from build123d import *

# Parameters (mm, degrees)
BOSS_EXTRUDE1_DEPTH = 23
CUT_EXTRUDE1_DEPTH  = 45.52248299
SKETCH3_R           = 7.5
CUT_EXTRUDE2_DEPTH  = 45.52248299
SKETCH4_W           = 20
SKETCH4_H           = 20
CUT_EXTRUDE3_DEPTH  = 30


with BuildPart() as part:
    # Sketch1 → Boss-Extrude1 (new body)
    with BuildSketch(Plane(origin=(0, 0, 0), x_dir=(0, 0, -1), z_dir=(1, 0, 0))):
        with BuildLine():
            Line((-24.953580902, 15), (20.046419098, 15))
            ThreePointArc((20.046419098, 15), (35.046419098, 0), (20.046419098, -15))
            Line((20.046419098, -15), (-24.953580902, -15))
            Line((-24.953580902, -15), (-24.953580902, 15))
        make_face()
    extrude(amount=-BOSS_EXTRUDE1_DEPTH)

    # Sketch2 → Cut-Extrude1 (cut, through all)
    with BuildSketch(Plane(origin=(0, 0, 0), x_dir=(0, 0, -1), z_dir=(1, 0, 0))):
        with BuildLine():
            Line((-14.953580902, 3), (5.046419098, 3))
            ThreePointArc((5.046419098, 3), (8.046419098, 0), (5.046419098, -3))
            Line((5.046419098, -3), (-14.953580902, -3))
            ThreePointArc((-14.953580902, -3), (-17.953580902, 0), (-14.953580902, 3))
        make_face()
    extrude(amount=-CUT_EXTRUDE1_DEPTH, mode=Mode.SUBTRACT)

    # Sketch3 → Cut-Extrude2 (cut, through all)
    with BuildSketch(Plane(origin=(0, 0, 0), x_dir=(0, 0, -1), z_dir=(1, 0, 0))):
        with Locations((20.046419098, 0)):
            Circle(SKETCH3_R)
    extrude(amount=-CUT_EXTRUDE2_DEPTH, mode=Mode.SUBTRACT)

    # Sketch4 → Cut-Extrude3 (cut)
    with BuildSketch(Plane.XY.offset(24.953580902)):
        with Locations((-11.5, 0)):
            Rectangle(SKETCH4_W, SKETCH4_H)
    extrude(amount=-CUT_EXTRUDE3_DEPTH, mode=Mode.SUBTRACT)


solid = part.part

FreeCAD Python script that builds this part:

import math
import FreeCAD as App
import Part
import Sketcher

V = App.Vector

doc = App.newDocument("Part")
body = doc.addObject("PartDesign::Body", "Body")

# Sketch on YZ plane
sketch1 = doc.addObject("Sketcher::SketchObject", "Sketch")
body.addObject(sketch1)
sketch1.AttachmentSupport = (doc.YZ_Plane, [""])
sketch1.MapMode = "FlatFace"
sketch1.addGeometry(Part.LineSegment(V(15, -20.046419, 0), V(15, 24.953581, 0)), False)
sketch1.addGeometry(Part.LineSegment(V(15, 24.953581, 0), V(-15, 24.953581, 0)), False)
sketch1.addGeometry(Part.LineSegment(V(-15, 24.953581, 0), V(-15, -20.046419, 0)), False)
sketch1.addGeometry(Part.ArcOfCircle(Part.Circle(V(0, -20.046419, 0), V(0, 0, 1), 15), math.radians(180), math.radians(360)), False)
sketch1.addConstraint(Sketcher.Constraint("Coincident", 0, 2, 1, 1))
sketch1.addConstraint(Sketcher.Constraint("Coincident", 1, 2, 2, 1))
sketch1.addConstraint(Sketcher.Constraint("Tangent", 2, 2, 3, 1))
sketch1.addConstraint(Sketcher.Constraint("Tangent", 3, 2, 0, 1))
sketch1.addConstraint(Sketcher.Constraint("Vertical", 0))
sketch1.addConstraint(Sketcher.Constraint("Horizontal", 1))
sketch1.addConstraint(Sketcher.Constraint("Vertical", 2))
sketch1.addConstraint(Sketcher.Constraint("PointOnObject", 3, 3, -2))
sketch1.addConstraint(Sketcher.Constraint("Radius", 3, 15.0))
sketch1.addConstraint(Sketcher.Constraint("DistanceY", 0, 1, 0, 2, 45.0))
sketch1.addConstraint(Sketcher.Constraint("DistanceY", 3, 3, -1, 1, 20.046419))
pad1 = doc.addObject("PartDesign::Pad", "Pad")
body.addObject(pad1)
pad1.Profile = sketch1
pad1.Length = 23
pad1.Reversed = True

# Sketch on YZ plane
sketch2 = doc.addObject("Sketcher::SketchObject", "Sketch001")
body.addObject(sketch2)
sketch2.AttachmentSupport = (doc.YZ_Plane, [""])
sketch2.MapMode = "FlatFace"
sketch2.addGeometry(Part.LineSegment(V(3, -5.046419, 0), V(3, 14.953581, 0)), False)
sketch2.addGeometry(Part.ArcOfCircle(Part.Circle(V(0, 14.953581, 0), V(0, 0, 1), 3), math.radians(0), math.radians(180)), False)
sketch2.addGeometry(Part.LineSegment(V(-3, 14.953581, 0), V(-3, -5.046419, 0)), False)
sketch2.addGeometry(Part.ArcOfCircle(Part.Circle(V(0, -5.046419, 0), V(0, 0, 1), 3), math.radians(180), math.radians(360)), False)
sketch2.addConstraint(Sketcher.Constraint("Tangent", 0, 2, 1, 1))
sketch2.addConstraint(Sketcher.Constraint("Tangent", 1, 2, 2, 1))
sketch2.addConstraint(Sketcher.Constraint("Tangent", 2, 2, 3, 1))
sketch2.addConstraint(Sketcher.Constraint("Tangent", 3, 2, 0, 1))
sketch2.addConstraint(Sketcher.Constraint("Vertical", 0))
sketch2.addConstraint(Sketcher.Constraint("Vertical", 2))
sketch2.addConstraint(Sketcher.Constraint("PointOnObject", 1, 3, -2))
sketch2.addConstraint(Sketcher.Constraint("Radius", 1, 3.0))
sketch2.addConstraint(Sketcher.Constraint("DistanceY", 0, 1, 0, 2, 20.0))
sketch2.addConstraint(Sketcher.Constraint("DistanceY", -1, 1, 1, 3, 14.953581))
pocket1 = doc.addObject("PartDesign::Pocket", "Pocket")
body.addObject(pocket1)
pocket1.Profile = sketch2
pocket1.Type = "ThroughAll"

# Sketch on YZ plane
sketch3 = doc.addObject("Sketcher::SketchObject", "Sketch002")
body.addObject(sketch3)
sketch3.AttachmentSupport = (doc.YZ_Plane, [""])
sketch3.MapMode = "FlatFace"
sketch3.addGeometry(Part.Circle(V(0, -20.046419, 0), V(0, 0, 1), 7.5), False)
sketch3.addConstraint(Sketcher.Constraint("PointOnObject", 0, 3, -2))
sketch3.addConstraint(Sketcher.Constraint("Diameter", 0, 15.0))
sketch3.addConstraint(Sketcher.Constraint("DistanceY", 0, 3, -1, 1, 20.046419))
pocket2 = doc.addObject("PartDesign::Pocket", "Pocket001")
body.addObject(pocket2)
pocket2.Profile = sketch3
pocket2.Type = "ThroughAll"

# Sketch on XY plane
sketch4 = doc.addObject("Sketcher::SketchObject", "Sketch003")
body.addObject(sketch4)
sketch4.AttachmentSupport = (doc.XY_Plane, [""])
sketch4.MapMode = "FlatFace"
sketch4.AttachmentOffset = App.Placement(V(0, 0, 24.953581), App.Rotation())
sketch4.addGeometry(Part.LineSegment(V(-21.5, 10, 0), V(-21.5, -10, 0)), False)
sketch4.addGeometry(Part.LineSegment(V(-21.5, -10, 0), V(-1.5, -10, 0)), False)
sketch4.addGeometry(Part.LineSegment(V(-1.5, -10, 0), V(-1.5, 10, 0)), False)
sketch4.addGeometry(Part.LineSegment(V(-1.5, 10, 0), V(-21.5, 10, 0)), False)
sketch4.addConstraint(Sketcher.Constraint("Coincident", 0, 2, 1, 1))
sketch4.addConstraint(Sketcher.Constraint("Coincident", 1, 2, 2, 1))
sketch4.addConstraint(Sketcher.Constraint("Coincident", 2, 2, 3, 1))
sketch4.addConstraint(Sketcher.Constraint("Coincident", 3, 2, 0, 1))
sketch4.addConstraint(Sketcher.Constraint("Vertical", 0))
sketch4.addConstraint(Sketcher.Constraint("Horizontal", 1))
sketch4.addConstraint(Sketcher.Constraint("Vertical", 2))
sketch4.addConstraint(Sketcher.Constraint("Horizontal", 3))
sketch4.addConstraint(Sketcher.Constraint("Equal", 3, 0))
sketch4.addConstraint(Sketcher.Constraint("DistanceX", 1, 1, 1, 2, 20.0))
sketch4.addConstraint(Sketcher.Constraint("DistanceY", 0, 2, -1, 1, 10.0))
sketch4.addConstraint(Sketcher.Constraint("DistanceX", 0, 2, -1, 1, 21.5))
pocket3 = doc.addObject("PartDesign::Pocket", "Pocket002")
body.addObject(pocket3)
pocket3.Profile = sketch4
pocket3.Length = 30

doc.recompute()
